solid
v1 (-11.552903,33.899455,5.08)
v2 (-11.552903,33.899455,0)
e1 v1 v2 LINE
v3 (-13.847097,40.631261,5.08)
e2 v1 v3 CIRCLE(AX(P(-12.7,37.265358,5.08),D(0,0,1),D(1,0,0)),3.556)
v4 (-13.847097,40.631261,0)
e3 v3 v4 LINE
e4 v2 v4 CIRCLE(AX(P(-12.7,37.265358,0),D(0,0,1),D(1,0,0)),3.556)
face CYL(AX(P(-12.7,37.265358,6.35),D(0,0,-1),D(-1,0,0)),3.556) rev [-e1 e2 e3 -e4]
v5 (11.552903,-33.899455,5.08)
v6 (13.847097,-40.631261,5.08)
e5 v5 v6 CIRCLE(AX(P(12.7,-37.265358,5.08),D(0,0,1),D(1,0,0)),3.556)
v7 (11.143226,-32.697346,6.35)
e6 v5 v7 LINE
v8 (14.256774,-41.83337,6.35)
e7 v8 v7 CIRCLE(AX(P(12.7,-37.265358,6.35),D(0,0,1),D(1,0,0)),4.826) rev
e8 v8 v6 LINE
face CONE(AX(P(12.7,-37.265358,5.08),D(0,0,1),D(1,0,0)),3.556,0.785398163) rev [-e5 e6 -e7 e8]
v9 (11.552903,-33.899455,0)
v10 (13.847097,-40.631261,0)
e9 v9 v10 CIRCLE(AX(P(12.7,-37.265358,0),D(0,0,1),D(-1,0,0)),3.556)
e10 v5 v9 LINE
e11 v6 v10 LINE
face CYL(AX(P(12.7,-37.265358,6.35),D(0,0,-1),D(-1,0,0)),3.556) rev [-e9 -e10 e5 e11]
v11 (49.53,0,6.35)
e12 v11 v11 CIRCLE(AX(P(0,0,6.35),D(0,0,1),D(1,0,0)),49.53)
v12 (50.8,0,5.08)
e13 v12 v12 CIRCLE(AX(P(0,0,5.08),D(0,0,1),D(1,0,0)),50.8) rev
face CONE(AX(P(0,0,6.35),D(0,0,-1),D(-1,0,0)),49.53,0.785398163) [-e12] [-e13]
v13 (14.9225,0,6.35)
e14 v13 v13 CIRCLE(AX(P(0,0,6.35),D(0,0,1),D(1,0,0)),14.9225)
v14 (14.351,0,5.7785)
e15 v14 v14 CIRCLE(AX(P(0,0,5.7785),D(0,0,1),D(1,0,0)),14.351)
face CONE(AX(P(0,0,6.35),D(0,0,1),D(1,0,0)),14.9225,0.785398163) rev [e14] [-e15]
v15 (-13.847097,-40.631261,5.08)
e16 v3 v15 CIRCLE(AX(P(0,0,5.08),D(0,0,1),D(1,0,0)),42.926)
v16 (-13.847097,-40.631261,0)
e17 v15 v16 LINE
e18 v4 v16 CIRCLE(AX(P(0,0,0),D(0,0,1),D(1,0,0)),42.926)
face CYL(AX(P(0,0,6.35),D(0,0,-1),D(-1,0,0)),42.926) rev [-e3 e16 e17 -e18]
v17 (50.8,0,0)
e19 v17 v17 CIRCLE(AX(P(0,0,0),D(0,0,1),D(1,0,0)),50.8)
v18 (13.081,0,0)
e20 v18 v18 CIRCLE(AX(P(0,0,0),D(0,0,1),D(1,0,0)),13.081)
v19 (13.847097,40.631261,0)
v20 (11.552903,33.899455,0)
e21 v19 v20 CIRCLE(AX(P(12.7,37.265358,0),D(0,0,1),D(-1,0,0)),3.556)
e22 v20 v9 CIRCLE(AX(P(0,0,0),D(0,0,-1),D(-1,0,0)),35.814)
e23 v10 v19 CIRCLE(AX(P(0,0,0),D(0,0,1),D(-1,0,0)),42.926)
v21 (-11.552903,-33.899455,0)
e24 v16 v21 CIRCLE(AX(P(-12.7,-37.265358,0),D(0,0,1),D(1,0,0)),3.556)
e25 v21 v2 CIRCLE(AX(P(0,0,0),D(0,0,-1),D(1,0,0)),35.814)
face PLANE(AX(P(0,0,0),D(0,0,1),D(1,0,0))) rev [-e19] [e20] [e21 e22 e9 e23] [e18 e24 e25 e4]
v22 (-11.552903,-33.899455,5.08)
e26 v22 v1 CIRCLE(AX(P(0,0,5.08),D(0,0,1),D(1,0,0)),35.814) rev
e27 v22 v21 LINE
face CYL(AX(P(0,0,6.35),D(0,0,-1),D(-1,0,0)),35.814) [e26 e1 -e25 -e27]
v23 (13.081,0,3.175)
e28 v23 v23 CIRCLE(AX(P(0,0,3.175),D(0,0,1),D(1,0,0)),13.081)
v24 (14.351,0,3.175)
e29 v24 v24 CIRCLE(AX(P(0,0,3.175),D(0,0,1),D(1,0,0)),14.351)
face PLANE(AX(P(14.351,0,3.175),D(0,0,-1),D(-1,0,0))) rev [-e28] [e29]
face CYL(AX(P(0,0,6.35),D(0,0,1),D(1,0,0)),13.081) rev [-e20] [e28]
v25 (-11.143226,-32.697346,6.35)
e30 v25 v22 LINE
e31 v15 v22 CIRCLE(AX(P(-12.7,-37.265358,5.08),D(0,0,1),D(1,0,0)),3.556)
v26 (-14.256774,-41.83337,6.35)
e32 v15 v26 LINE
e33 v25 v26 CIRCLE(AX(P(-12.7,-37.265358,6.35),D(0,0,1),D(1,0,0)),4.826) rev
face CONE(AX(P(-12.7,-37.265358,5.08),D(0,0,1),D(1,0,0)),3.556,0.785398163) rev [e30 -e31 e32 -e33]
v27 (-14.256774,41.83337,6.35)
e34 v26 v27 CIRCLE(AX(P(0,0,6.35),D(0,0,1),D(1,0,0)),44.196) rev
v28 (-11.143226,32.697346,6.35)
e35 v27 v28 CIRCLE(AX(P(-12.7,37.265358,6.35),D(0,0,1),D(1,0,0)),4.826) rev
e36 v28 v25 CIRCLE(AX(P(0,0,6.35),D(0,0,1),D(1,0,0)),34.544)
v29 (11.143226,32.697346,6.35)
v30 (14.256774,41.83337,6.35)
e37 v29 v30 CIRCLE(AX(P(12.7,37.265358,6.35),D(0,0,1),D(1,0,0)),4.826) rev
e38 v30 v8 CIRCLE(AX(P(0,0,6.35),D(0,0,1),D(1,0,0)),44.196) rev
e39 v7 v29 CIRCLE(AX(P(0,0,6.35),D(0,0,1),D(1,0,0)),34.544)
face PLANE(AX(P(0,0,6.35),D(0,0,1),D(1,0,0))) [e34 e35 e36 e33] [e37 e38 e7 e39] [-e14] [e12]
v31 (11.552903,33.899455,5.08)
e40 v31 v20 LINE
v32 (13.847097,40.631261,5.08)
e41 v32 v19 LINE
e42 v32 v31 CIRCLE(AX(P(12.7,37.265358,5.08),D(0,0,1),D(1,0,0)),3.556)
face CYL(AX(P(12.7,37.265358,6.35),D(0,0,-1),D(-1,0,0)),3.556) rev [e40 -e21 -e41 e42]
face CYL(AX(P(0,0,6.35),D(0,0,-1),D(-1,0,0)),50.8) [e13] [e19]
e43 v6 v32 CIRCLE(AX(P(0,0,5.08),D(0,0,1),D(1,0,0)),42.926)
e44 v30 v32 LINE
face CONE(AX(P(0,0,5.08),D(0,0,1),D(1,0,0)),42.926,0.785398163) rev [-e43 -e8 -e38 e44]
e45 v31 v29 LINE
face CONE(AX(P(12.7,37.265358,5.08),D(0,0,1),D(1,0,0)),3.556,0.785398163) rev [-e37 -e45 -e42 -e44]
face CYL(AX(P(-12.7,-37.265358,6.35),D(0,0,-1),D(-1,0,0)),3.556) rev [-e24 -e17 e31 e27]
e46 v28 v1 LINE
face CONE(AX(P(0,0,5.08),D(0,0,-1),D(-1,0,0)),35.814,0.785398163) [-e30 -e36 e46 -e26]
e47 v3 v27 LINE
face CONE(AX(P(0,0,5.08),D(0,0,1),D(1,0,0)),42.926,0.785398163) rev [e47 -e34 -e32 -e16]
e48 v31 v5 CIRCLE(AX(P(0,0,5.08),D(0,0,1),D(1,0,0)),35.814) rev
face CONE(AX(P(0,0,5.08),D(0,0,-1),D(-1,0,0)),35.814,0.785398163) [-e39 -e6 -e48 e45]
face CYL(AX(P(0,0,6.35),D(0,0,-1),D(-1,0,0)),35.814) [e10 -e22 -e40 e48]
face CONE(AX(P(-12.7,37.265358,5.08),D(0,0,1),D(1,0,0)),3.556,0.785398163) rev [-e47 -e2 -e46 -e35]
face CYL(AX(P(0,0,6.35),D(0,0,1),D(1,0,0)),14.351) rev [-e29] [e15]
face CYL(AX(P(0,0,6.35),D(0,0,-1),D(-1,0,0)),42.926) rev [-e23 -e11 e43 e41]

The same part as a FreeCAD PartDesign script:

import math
import FreeCAD as App
import Part
import Sketcher

V = App.Vector
Q = App.Units.Quantity


def edges_at(feature, points):
    """Names of the edges that pass closest to the given points."""
    edges = feature.Shape.Edges
    near = lambda p: min(range(len(edges)), key=lambda i: edges[i].distToShape(Part.Vertex(*p))[0])
    return sorted({f"Edge{near(p) + 1}" for p in points})

doc = App.newDocument("Part")
params = doc.addObject("Spreadsheet::Sheet", "Params")
for row, (alias, value) in enumerate([
    ("sketch1_diameter", "4 in"),
    ("sketch1_radius", "1.69 in"),
    ("sketch1_radius2", "0.14 in"),
    ("pad1_length", "0.25 in"),
    ("chamfer_size", "0.05 in"),
    ("sketch2_width", "0.05 in"),
    ("sketch2_height", "0.25 in"),
    ("sketch2_width2", "0.515 in"),
    ("sketch2_height2", "0.125 in"),
    ("groove_angle", "360 deg"),
], start=1):
    params.set(f"A{row}", alias)
    params.set(f"B{row}", "=" + value)
    params.setAlias(f"B{row}", alias)

body = doc.addObject("PartDesign::Body", "Body")

# Sketch on XY plane
sketch1 = body.newObject("Sketcher::SketchObject", "Sketch")
sketch1.AttachmentSupport = (doc.getObject("XY_Plane"), [""])
sketch1.MapMode = "FlatFace"
sketch1.addGeometry([
    Part.Circle(V(0, 0, 0), V(0, 0, 1), 50.8),  # 0
    Part.ArcOfCircle(Part.Circle(V(0, 0, 0), V(0, 0, 1), 42.926), math.radians(108.819063), math.radians(251.180937)),  # 1
    Part.ArcOfCircle(Part.Circle(V(-12.7, 37.265358, 0), V(0, 0, 1), 3.556), math.radians(-71.180937), math.radians(108.819063)),  # 2
    Part.ArcOfCircle(Part.Circle(V(0, 0, 0), V(0, 0, 1), 35.814), math.radians(108.819063), math.radians(251.180937)),  # 3
    Part.ArcOfCircle(Part.Circle(V(-12.7, -37.265358, 0), V(0, 0, 1), 3.556), math.radians(-108.819063), math.radians(71.180937)),  # 4
    Part.ArcOfCircle(Part.Circle(V(12.7, 37.265358, 0), V(0, 0, 1), 3.556), math.radians(71.180937), math.radians(251.180937)),  # 5
    Part.ArcOfCircle(Part.Circle(V(0, 0, 0), V(0, 0, 1), 42.926), math.radians(-71.180937), math.radians(71.180937)),  # 6
    Part.ArcOfCircle(Part.Circle(V(12.7, -37.265358, 0), V(0, 0, 1), 3.556), math.radians(108.819063), math.radians(288.819063)),  # 7
    Part.ArcOfCircle(Part.Circle(V(0, 0, 0), V(0, 0, 1), 35.814), math.radians(-71.180937), math.radians(71.180937)),  # 8
], False)
sketch1.addConstraint([
    Sketcher.Constraint("Tangent", 1, 1, 2, 2),
    Sketcher.Constraint("Tangent", 2, 1, 3, 1),
    Sketcher.Constraint("Tangent", 3, 2, 4, 2),
    Sketcher.Constraint("Tangent", 4, 1, 1, 2),
    Sketcher.Constraint("Tangent", 5, 1, 6, 2),
    Sketcher.Constraint("Tangent", 6, 1, 7, 2),
    Sketcher.Constraint("Tangent", 7, 1, 8, 1),
    Sketcher.Constraint("Tangent", 8, 2, 5, 2),
    Sketcher.Constraint("Coincident", 0, 3, -1, 1),
    Sketcher.Constraint("Coincident", 1, 3, -1, 1),
    Sketcher.Constraint("Coincident", 3, 3, -1, 1),
    Sketcher.Constraint("Coincident", 6, 3, -1, 1),
    Sketcher.Constraint("Coincident", 8, 3, -1, 1),
    Sketcher.Constraint("Equal", 4, 5),
    Sketcher.Constraint("Equal", 1, 6),
    Sketcher.Constraint("Horizontal", 2, 3, 5, 3),
    Sketcher.Constraint("Horizontal", 4, 3, 7, 3),
    Sketcher.Constraint("Vertical", 2, 3, 4, 3),
    Sketcher.Constraint("Diameter", 0, Q("4 in")),
    Sketcher.Constraint("Radius", 1, Q("1.69 in")),
    Sketcher.Constraint("Radius", 2, Q("0.14 in")),
    Sketcher.Constraint("DistanceX", 2, 3, 5, 3, Q("1 in")),
])
sketch1.setExpression("Constraints[18]", "Params.sketch1_diameter")
sketch1.setExpression("Constraints[19]", "Params.sketch1_radius")
sketch1.setExpression("Constraints[20]", "Params.sketch1_radius2")
pad1 = body.newObject("PartDesign::Pad", "Pad")
pad1.Profile = sketch1
pad1.setExpression("Length", "Params.pad1_length")
doc.recompute()

chamfer = body.newObject("PartDesign::Chamfer", "Chamfer")
chamfer.Base = (pad1, edges_at(pad1, [
    (-9.334, -38.412, 6.35),
    (-35.814, 0, 6.35),
    (9.334, 38.412, 6.35),
    (35.814, 0, 6.35),
    (9.334, -38.412, 6.35),
    (42.926, 0, 6.35),
    (-50.8, 0, 6.35),
    (-9.334, 38.412, 6.35),
    (-42.926, 0, 6.35),
]))
chamfer.setExpression("Size", "Params.chamfer_size")

# Sketch on YZ plane
sketch2 = body.newObject("Sketcher::SketchObject", "Sketch001")
sketch2.AttachmentSupport = (doc.getObject("YZ_Plane"), [""])
sketch2.MapMode = "FlatFace"
sketch2.addGeometry([
    Part.LineSegment(V(0, 0, 0), V(0, 6.35, 0)),  # 0
    Part.LineSegment(V(0, 6.35, 0), V(-14.9225, 6.35, 0)),  # 1
    Part.LineSegment(V(-14.9225, 6.35, 0), V(-14.351, 5.7785, 0)),  # 2
    Part.LineSegment(V(-14.351, 5.7785, 0), V(-14.351, 3.175, 0)),  # 3
    Part.LineSegment(V(-14.351, 3.175, 0), V(-13.081, 3.175, 0)),  # 4
    Part.LineSegment(V(-13.081, 3.175, 0), V(-13.081, 0, 0)),  # 5
    Part.LineSegment(V(-13.081, 0, 0), V(0, 0, 0)),  # 6
], False)
sketch2.addConstraint([
    Sketcher.Constraint("Coincident", 0, 2, 1, 1),
    Sketcher.Constraint("Coincident", 1, 2, 2, 1),
    Sketcher.Constraint("Coincident", 2, 2, 3, 1),
    Sketcher.Constraint("Coincident", 3, 2, 4, 1),
    Sketcher.Constraint("Coincident", 4, 2, 5, 1),
    Sketcher.Constraint("Coincident", 5, 2, 6, 1),
    Sketcher.Constraint("Coincident", 6, 2, 0, 1),
    Sketcher.Constraint("Vertical", 0),
    Sketcher.Constraint("Horizontal", 1),
    Sketcher.Constraint("Vertical", 3),
    Sketcher.Constraint("Horizontal", 4),
    Sketcher.Constraint("Vertical", 5),
    Sketcher.Constraint("Horizontal", 6),
    Sketcher.Constraint("Coincident", 6, 2, -1, 1),
    Sketcher.Constraint("Angle", 2, Q("-45 deg")),
    Sketcher.Constraint("DistanceX", 4, 1, 4, 2, Q("0.05 in")),
    Sketcher.Constraint("DistanceY", 0, 1, 0, 2, Q("0.25 in")),
    Sketcher.Constraint("DistanceX", 6, 1, 6, 2, Q("0.515 in")),
    Sketcher.Constraint("DistanceY", 5, 2, 5, 1, Q("0.125 in")),
    Sketcher.Constraint("DistanceX", 1, 2, 1, 1, Q("0.5875 in")),
])
sketch2.setExpression("Constraints[15]", "Params.sketch2_width")
sketch2.setExpression("Constraints[16]", "Params.sketch2_height")
sketch2.setExpression("Constraints[17]", "Params.sketch2_width2")
sketch2.setExpression("Constraints[18]", "Params.sketch2_height2")
groove = body.newObject("PartDesign::Groove", "Groove")
groove.Profile = sketch2
groove.ReferenceAxis = (sketch2, ["V_Axis"])
groove.setExpression("Angle", "Params.groove_angle")

doc.recompute()
